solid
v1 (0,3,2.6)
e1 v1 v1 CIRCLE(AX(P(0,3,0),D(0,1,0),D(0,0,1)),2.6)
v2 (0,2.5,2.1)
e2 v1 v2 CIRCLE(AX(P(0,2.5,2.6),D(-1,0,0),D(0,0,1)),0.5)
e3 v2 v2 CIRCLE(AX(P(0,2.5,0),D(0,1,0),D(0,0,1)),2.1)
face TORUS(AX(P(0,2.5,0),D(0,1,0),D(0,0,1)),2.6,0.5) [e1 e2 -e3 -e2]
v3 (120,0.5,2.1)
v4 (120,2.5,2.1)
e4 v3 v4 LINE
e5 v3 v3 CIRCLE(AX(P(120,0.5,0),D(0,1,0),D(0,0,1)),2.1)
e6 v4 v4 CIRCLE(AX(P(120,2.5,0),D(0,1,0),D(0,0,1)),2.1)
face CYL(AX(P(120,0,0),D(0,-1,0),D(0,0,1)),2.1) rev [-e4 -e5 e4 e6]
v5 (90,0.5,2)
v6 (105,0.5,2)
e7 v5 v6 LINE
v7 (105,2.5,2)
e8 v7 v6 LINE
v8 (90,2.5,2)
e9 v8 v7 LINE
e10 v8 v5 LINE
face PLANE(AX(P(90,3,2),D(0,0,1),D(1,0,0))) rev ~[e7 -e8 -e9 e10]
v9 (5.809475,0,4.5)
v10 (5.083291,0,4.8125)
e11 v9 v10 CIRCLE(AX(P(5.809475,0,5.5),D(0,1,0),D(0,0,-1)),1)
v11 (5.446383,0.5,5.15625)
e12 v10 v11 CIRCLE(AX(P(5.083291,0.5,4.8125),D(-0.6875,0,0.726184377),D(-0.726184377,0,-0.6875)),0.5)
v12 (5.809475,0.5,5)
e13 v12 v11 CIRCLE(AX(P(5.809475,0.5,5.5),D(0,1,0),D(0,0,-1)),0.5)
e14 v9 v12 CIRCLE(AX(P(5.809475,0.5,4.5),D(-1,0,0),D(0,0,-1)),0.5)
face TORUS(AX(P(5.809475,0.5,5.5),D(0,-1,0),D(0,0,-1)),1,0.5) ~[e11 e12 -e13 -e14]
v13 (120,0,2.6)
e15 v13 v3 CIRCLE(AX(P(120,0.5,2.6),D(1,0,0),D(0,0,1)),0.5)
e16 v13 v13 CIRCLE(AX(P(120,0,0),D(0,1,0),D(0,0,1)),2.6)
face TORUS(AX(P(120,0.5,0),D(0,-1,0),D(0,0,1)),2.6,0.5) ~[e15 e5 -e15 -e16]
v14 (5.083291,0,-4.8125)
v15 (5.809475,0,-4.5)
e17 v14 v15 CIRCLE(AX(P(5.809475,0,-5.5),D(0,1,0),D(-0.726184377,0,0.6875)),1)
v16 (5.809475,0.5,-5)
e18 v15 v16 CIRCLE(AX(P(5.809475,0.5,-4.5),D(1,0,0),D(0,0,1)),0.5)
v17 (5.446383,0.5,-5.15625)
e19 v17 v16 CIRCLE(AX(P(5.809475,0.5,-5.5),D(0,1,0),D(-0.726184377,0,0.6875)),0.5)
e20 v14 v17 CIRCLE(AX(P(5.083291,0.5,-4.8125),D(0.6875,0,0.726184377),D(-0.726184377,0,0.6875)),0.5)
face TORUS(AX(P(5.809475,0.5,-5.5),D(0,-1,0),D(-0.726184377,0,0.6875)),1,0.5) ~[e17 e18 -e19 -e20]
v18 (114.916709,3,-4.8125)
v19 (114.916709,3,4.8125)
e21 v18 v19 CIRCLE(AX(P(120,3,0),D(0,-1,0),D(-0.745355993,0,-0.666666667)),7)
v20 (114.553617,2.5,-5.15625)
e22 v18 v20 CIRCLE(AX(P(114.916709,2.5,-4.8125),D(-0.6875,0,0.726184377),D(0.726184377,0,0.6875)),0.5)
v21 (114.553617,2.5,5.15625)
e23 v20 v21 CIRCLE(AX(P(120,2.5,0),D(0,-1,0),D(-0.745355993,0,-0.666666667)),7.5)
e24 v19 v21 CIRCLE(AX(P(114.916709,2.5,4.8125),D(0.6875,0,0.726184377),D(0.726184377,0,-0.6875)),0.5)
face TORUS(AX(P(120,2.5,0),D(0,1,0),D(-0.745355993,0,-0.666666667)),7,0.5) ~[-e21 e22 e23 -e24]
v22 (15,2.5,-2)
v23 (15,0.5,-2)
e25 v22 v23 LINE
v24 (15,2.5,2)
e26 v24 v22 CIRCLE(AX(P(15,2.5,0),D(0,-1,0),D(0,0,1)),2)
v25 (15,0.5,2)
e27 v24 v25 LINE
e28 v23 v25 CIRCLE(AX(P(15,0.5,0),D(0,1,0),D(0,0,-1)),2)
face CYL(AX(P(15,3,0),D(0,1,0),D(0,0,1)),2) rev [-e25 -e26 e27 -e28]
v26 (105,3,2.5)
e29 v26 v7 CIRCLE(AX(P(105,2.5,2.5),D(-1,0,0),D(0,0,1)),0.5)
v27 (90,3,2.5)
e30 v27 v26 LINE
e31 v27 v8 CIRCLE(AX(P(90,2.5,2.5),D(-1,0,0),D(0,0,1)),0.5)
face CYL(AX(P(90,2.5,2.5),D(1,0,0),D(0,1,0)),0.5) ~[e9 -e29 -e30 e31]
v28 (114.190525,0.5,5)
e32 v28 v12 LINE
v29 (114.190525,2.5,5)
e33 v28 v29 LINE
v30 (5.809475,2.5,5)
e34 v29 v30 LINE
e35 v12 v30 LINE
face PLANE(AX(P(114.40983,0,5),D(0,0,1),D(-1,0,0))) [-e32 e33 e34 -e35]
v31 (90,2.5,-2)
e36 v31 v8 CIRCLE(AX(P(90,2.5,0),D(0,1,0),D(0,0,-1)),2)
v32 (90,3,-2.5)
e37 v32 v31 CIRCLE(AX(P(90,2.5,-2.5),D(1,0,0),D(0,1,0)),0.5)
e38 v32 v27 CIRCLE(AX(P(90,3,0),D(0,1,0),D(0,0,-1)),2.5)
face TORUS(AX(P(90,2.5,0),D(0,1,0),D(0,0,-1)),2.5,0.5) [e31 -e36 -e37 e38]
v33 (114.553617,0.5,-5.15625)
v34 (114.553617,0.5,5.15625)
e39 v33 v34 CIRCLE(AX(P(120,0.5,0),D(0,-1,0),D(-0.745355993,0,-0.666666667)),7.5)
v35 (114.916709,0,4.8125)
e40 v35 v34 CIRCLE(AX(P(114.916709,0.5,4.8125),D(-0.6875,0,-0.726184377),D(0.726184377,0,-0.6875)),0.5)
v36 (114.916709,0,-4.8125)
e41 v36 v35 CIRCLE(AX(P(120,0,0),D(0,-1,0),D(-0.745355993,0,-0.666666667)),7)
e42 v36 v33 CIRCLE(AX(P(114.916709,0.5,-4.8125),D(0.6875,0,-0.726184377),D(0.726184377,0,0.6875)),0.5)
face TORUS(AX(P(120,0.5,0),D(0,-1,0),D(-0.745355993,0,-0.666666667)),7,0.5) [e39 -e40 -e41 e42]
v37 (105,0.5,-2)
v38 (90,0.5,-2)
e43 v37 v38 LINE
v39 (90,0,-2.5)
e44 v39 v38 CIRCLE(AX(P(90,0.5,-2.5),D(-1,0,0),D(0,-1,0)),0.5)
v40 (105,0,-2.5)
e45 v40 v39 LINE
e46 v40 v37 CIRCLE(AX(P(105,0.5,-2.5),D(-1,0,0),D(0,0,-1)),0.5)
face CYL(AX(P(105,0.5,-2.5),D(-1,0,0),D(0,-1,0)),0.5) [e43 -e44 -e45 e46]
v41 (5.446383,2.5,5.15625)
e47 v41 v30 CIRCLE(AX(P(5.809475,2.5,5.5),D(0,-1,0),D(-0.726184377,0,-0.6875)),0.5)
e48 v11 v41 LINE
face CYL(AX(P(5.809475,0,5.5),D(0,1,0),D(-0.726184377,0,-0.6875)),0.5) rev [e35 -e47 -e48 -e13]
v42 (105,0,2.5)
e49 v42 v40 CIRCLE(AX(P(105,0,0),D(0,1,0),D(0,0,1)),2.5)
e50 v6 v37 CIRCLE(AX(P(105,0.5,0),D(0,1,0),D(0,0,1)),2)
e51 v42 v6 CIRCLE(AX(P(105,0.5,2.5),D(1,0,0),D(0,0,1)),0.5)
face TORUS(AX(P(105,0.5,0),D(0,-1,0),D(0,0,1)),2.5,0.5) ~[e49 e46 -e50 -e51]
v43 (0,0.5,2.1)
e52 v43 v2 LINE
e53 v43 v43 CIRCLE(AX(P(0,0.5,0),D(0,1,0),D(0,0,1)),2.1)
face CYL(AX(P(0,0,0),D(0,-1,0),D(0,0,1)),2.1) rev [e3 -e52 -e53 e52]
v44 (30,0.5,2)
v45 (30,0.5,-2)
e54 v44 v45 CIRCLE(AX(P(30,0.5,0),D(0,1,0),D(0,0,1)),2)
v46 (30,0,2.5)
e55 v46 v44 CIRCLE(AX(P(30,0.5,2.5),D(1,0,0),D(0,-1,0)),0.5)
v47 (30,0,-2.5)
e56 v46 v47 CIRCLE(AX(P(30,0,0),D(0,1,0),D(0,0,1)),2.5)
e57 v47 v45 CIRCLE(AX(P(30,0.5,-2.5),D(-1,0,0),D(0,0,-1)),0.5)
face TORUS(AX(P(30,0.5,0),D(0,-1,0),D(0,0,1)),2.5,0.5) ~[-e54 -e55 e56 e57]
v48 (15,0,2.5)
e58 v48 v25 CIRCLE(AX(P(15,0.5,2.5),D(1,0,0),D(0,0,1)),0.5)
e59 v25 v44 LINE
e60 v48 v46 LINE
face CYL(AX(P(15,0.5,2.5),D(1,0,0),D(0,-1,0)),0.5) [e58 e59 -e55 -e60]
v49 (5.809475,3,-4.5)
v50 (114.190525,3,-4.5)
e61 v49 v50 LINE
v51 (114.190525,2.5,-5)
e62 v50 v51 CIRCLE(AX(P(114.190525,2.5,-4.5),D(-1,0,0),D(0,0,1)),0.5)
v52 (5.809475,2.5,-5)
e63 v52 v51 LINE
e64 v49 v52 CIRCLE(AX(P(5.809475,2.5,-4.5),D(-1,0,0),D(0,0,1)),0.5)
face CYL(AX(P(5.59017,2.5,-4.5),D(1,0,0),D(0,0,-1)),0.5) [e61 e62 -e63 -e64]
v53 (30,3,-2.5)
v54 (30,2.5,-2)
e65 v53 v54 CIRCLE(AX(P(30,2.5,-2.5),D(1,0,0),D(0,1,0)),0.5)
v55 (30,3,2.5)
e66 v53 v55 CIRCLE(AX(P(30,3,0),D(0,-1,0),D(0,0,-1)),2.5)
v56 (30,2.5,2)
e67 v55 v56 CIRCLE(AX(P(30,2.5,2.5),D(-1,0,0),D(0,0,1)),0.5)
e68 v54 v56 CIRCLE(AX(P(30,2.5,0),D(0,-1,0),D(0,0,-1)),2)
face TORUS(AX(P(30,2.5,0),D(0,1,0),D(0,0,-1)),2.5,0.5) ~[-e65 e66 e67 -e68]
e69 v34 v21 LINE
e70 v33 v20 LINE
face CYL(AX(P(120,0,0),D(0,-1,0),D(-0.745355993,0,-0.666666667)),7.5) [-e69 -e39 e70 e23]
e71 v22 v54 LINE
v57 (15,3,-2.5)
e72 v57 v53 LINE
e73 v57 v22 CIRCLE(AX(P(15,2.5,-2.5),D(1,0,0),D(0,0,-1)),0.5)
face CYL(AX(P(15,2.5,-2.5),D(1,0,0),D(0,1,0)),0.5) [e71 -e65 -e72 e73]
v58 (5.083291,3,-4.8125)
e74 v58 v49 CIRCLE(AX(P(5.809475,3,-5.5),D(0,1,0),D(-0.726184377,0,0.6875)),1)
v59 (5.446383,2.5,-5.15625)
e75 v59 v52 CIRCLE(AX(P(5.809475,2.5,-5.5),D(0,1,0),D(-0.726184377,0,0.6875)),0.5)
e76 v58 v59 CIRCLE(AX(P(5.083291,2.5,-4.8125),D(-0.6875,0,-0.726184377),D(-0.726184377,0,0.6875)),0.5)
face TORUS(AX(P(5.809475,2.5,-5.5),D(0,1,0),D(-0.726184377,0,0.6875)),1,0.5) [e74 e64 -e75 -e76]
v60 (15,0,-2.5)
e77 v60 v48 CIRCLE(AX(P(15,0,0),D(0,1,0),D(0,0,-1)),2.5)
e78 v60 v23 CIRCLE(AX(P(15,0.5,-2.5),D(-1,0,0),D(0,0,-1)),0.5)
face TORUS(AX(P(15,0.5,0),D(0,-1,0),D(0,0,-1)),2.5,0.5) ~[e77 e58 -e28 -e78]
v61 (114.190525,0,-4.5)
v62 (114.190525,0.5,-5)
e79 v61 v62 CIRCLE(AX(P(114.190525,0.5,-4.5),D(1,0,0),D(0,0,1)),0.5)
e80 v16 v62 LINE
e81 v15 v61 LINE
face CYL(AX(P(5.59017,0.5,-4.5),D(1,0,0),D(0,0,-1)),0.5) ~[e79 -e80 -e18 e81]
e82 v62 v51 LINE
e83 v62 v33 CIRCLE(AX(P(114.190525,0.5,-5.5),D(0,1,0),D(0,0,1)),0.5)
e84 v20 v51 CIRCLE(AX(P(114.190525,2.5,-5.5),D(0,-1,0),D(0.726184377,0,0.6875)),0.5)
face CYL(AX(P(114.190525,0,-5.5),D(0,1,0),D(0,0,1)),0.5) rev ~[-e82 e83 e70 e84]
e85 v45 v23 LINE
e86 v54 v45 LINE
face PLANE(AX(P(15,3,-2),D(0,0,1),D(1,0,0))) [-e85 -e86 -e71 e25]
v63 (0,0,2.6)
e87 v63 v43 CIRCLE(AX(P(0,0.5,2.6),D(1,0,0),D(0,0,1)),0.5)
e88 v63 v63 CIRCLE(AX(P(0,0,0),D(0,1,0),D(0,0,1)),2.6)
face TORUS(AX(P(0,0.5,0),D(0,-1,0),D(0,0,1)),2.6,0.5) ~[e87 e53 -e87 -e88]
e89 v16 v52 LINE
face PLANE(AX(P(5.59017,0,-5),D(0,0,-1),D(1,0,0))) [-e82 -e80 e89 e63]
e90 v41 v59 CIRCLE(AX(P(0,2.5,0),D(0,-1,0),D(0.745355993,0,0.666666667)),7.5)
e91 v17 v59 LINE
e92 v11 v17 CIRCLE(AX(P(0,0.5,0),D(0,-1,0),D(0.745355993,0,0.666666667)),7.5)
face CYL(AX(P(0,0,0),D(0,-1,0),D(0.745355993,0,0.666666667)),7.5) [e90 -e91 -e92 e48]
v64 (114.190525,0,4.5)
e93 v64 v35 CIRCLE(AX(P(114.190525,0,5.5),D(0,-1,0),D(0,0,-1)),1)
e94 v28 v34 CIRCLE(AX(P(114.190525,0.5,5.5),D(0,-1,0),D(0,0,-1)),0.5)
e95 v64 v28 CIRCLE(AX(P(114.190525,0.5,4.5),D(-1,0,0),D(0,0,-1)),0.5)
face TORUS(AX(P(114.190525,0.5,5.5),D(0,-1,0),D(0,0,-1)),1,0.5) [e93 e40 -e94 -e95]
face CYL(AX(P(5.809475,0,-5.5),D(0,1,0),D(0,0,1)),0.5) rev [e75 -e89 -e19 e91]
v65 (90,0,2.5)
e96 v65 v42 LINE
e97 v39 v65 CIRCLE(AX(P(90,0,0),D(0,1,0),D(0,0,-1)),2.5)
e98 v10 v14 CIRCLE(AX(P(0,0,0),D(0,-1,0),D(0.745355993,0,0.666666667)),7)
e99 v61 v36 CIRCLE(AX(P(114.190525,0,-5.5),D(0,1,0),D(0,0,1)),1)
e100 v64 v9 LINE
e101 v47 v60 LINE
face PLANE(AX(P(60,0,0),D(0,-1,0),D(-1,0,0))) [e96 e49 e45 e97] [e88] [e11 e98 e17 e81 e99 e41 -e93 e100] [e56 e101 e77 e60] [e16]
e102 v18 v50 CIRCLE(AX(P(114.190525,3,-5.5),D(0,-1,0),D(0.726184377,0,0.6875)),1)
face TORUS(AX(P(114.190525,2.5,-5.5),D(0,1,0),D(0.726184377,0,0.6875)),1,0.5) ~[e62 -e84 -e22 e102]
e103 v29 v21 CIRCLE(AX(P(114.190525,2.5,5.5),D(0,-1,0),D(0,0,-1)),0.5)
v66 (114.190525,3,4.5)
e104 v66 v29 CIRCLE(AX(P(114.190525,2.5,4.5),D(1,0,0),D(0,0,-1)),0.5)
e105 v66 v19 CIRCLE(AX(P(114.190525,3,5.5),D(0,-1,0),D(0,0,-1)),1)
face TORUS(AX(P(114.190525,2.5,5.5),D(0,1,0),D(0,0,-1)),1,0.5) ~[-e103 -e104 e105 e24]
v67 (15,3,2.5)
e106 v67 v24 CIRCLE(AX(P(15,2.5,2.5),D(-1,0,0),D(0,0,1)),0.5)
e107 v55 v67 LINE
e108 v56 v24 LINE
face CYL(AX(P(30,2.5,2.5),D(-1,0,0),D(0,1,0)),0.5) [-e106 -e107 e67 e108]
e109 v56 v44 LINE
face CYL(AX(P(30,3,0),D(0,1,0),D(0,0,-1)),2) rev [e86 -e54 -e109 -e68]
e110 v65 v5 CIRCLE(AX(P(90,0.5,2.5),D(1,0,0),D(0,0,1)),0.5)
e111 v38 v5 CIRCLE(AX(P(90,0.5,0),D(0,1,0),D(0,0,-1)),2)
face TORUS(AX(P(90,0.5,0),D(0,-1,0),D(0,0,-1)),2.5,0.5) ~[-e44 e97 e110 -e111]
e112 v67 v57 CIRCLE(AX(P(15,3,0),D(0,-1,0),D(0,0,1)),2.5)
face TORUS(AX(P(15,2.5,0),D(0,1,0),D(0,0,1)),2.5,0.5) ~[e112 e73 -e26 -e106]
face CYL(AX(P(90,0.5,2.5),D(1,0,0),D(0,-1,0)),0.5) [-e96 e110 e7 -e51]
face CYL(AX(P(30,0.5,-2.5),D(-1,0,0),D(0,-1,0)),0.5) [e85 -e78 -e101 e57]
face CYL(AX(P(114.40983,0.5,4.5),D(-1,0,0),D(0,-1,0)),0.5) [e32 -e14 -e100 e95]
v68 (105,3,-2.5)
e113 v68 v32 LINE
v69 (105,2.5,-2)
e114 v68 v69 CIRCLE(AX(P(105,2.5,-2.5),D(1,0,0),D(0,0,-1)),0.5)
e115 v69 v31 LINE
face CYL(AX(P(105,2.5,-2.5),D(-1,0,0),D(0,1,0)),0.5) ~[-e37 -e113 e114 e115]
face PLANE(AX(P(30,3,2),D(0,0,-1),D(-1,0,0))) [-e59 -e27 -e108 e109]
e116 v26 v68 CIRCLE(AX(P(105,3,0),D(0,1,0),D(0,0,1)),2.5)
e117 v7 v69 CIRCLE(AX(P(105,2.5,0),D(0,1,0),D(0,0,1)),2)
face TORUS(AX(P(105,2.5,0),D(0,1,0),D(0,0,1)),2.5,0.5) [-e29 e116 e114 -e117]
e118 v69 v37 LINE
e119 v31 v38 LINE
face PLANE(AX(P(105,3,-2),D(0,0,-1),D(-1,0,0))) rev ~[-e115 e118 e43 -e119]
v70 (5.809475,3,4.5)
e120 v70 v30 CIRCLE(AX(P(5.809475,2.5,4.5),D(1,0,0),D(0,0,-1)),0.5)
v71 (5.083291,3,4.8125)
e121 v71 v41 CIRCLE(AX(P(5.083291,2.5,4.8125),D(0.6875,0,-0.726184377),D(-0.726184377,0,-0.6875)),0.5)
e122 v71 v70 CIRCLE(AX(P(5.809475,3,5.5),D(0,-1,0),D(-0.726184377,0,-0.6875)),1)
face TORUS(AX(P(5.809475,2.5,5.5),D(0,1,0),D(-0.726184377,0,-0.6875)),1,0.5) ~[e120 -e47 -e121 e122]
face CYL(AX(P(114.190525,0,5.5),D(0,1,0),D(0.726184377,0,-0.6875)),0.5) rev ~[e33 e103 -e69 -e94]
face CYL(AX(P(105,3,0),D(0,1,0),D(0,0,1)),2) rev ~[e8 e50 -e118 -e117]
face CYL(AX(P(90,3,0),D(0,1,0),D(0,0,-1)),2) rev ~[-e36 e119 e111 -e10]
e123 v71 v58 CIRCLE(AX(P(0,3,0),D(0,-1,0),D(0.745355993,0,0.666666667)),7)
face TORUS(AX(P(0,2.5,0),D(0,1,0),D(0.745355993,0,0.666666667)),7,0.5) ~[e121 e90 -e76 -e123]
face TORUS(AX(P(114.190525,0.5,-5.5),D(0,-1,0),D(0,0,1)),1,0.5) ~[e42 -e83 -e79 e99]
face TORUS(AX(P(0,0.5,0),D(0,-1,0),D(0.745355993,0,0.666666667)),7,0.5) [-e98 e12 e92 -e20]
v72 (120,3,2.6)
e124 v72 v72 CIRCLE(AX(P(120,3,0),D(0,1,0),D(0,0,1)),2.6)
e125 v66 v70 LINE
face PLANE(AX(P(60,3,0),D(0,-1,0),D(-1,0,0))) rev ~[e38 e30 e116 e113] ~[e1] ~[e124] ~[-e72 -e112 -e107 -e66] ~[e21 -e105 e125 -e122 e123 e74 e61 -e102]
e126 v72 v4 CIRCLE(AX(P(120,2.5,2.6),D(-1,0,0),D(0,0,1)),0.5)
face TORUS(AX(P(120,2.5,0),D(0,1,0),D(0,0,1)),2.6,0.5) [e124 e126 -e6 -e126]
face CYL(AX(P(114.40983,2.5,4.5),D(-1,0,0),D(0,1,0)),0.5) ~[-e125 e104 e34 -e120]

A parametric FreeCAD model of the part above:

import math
import FreeCAD as App
import Part
import Sketcher
from FreeCAD import Vector
Q = App.Units.Quantity

doc = App.newDocument("Part")
body = doc.addObject("PartDesign::Body", "Body")

# Sketch on XZ plane
sketch1 = doc.addObject("Sketcher::SketchObject", "Sketch")
body.addObject(sketch1)
sketch1.AttachmentSupport = (doc.XZ_Plane, [""])
sketch1.MapMode = "FlatFace"
sketch1.addGeometry([
    Part.LineSegment(Vector(114.4, -5, 0), Vector(5.6, -5, 0)),  # 0
    Part.ArcOfCircle(Part.Circle(Vector(0, 0, 0), Vector(0, 0, 1), 7.5), math.radians(42), math.radians(318)),  # 1
    Part.LineSegment(Vector(5.6, 5, 0), Vector(114.4, 5, 0)),  # 2
    Part.ArcOfCircle(Part.Circle(Vector(120, 0, 0), Vector(0, 0, 1), 7.5), math.radians(-138), math.radians(138)),  # 3
    Part.Circle(Vector(120, 0, 0), Vector(0, 0, 1), 2.1),  # 4
    Part.Circle(Vector(0, 0, 0), Vector(0, 0, 1), 2.1),  # 5
], False)
sketch1.addConstraint([
    Sketcher.Constraint("Coincident", 0, 2, 1, 2),
    Sketcher.Constraint("Coincident", 1, 1, 2, 1),
    Sketcher.Constraint("Coincident", 2, 2, 3, 2),
    Sketcher.Constraint("Coincident", 3, 1, 0, 1),
    Sketcher.Constraint("Horizontal", 0),
    Sketcher.Constraint("Horizontal", 2),
    Sketcher.Constraint("Coincident", 1, 3, -1, 1),
    Sketcher.Constraint("Coincident", 5, 3, -1, 1),
    Sketcher.Constraint("Coincident", 4, 3, 3, 3),
    Sketcher.Constraint("Equal", 1, 3),
    Sketcher.Constraint("Equal", 4, 5),
    Sketcher.Constraint("Symmetric", 2, 2, 3, 1, -1),
    Sketcher.Constraint("Diameter", 4, Q("4.2 mm")),
    Sketcher.Constraint("Radius", 1, Q("7.5 mm")),
    Sketcher.Constraint("DistanceX", -1, 1, 3, 3, Q("120 mm")),
    Sketcher.Constraint("DistanceY", 0, 2, -1, 1, Q("5 mm")),
])
pad1 = doc.addObject("PartDesign::Pad", "Pad")
body.addObject(pad1)
pad1.Profile = sketch1
pad1.Length = 3
pad1.Reversed = True

# Sketch on XZ plane
sketch2 = doc.addObject("Sketcher::SketchObject", "Sketch001")
body.addObject(sketch2)
sketch2.AttachmentSupport = (doc.XZ_Plane, [""])
sketch2.MapMode = "FlatFace"
sketch2.AttachmentOffset = App.Placement(Vector(0, 0, -3), App.Rotation())
sketch2.addGeometry([
    Part.LineSegment(Vector(30, -2, 0), Vector(15, -2, 0)),  # 0
    Part.ArcOfCircle(Part.Circle(Vector(15, 0, 0), Vector(0, 0, 1), 2), math.radians(90), math.radians(270)),  # 1
    Part.LineSegment(Vector(15, 2, 0), Vector(30, 2, 0)),  # 2
    Part.ArcOfCircle(Part.Circle(Vector(30, 0, 0), Vector(0, 0, 1), 2), math.radians(-90), math.radians(90)),  # 3
    Part.LineSegment(Vector(105, -2, 0), Vector(90, -2, 0)),  # 4
    Part.ArcOfCircle(Part.Circle(Vector(90, 0, 0), Vector(0, 0, 1), 2), math.radians(90), math.radians(270)),  # 5
    Part.LineSegment(Vector(90, 2, 0), Vector(105, 2, 0)),  # 6
    Part.ArcOfCircle(Part.Circle(Vector(105, 0, 0), Vector(0, 0, 1), 2), math.radians(-90), math.radians(90)),  # 7
], False)
sketch2.addConstraint([
    Sketcher.Constraint("Tangent", 0, 2, 1, 2),
    Sketcher.Constraint("Tangent", 1, 1, 2, 1),
    Sketcher.Constraint("Tangent", 2, 2, 3, 2),
    Sketcher.Constraint("Tangent", 3, 1, 0, 1),
    Sketcher.Constraint("Tangent", 4, 2, 5, 2),
    Sketcher.Constraint("Tangent", 5, 1, 6, 1),
    Sketcher.Constraint("Tangent", 6, 2, 7, 2),
    Sketcher.Constraint("Tangent", 7, 1, 4, 1),
    Sketcher.Constraint("Horizontal", 0),
    Sketcher.Constraint("Horizontal", 2),
    Sketcher.Constraint("Horizontal", 4),
    Sketcher.Constraint("Horizontal", 6),
    Sketcher.Constraint("Equal", 3, 5),
    Sketcher.Constraint("PointOnObject", 1, 3, -1),
    Sketcher.Constraint("PointOnObject", 5, 3, -1),
    Sketcher.Constraint("Equal", 2, 4),
    Sketcher.Constraint("Radius", 1, Q("2 mm")),
    Sketcher.Constraint("DistanceX", 0, 2, 0, 1, Q("15 mm")),
    Sketcher.Constraint("DistanceX", -1, 1, 1, 3, Q("15 mm")),
    Sketcher.Constraint("DistanceX", -1, 1, 5, 3, Q("90 mm")),
])
pocket1 = doc.addObject("PartDesign::Pocket", "Pocket")
body.addObject(pocket1)
pocket1.Profile = sketch2
pocket1.Type = "ThroughAll"
pocket1.Reversed = True
doc.recompute()

fillet = doc.addObject("PartDesign::Fillet", "Fillet")
body.addObject(fillet)
fillet.Base = (pocket1, ["Edge1"])
fillet.UseAllEdges = True
fillet.Radius = 0.5

doc.recompute()
